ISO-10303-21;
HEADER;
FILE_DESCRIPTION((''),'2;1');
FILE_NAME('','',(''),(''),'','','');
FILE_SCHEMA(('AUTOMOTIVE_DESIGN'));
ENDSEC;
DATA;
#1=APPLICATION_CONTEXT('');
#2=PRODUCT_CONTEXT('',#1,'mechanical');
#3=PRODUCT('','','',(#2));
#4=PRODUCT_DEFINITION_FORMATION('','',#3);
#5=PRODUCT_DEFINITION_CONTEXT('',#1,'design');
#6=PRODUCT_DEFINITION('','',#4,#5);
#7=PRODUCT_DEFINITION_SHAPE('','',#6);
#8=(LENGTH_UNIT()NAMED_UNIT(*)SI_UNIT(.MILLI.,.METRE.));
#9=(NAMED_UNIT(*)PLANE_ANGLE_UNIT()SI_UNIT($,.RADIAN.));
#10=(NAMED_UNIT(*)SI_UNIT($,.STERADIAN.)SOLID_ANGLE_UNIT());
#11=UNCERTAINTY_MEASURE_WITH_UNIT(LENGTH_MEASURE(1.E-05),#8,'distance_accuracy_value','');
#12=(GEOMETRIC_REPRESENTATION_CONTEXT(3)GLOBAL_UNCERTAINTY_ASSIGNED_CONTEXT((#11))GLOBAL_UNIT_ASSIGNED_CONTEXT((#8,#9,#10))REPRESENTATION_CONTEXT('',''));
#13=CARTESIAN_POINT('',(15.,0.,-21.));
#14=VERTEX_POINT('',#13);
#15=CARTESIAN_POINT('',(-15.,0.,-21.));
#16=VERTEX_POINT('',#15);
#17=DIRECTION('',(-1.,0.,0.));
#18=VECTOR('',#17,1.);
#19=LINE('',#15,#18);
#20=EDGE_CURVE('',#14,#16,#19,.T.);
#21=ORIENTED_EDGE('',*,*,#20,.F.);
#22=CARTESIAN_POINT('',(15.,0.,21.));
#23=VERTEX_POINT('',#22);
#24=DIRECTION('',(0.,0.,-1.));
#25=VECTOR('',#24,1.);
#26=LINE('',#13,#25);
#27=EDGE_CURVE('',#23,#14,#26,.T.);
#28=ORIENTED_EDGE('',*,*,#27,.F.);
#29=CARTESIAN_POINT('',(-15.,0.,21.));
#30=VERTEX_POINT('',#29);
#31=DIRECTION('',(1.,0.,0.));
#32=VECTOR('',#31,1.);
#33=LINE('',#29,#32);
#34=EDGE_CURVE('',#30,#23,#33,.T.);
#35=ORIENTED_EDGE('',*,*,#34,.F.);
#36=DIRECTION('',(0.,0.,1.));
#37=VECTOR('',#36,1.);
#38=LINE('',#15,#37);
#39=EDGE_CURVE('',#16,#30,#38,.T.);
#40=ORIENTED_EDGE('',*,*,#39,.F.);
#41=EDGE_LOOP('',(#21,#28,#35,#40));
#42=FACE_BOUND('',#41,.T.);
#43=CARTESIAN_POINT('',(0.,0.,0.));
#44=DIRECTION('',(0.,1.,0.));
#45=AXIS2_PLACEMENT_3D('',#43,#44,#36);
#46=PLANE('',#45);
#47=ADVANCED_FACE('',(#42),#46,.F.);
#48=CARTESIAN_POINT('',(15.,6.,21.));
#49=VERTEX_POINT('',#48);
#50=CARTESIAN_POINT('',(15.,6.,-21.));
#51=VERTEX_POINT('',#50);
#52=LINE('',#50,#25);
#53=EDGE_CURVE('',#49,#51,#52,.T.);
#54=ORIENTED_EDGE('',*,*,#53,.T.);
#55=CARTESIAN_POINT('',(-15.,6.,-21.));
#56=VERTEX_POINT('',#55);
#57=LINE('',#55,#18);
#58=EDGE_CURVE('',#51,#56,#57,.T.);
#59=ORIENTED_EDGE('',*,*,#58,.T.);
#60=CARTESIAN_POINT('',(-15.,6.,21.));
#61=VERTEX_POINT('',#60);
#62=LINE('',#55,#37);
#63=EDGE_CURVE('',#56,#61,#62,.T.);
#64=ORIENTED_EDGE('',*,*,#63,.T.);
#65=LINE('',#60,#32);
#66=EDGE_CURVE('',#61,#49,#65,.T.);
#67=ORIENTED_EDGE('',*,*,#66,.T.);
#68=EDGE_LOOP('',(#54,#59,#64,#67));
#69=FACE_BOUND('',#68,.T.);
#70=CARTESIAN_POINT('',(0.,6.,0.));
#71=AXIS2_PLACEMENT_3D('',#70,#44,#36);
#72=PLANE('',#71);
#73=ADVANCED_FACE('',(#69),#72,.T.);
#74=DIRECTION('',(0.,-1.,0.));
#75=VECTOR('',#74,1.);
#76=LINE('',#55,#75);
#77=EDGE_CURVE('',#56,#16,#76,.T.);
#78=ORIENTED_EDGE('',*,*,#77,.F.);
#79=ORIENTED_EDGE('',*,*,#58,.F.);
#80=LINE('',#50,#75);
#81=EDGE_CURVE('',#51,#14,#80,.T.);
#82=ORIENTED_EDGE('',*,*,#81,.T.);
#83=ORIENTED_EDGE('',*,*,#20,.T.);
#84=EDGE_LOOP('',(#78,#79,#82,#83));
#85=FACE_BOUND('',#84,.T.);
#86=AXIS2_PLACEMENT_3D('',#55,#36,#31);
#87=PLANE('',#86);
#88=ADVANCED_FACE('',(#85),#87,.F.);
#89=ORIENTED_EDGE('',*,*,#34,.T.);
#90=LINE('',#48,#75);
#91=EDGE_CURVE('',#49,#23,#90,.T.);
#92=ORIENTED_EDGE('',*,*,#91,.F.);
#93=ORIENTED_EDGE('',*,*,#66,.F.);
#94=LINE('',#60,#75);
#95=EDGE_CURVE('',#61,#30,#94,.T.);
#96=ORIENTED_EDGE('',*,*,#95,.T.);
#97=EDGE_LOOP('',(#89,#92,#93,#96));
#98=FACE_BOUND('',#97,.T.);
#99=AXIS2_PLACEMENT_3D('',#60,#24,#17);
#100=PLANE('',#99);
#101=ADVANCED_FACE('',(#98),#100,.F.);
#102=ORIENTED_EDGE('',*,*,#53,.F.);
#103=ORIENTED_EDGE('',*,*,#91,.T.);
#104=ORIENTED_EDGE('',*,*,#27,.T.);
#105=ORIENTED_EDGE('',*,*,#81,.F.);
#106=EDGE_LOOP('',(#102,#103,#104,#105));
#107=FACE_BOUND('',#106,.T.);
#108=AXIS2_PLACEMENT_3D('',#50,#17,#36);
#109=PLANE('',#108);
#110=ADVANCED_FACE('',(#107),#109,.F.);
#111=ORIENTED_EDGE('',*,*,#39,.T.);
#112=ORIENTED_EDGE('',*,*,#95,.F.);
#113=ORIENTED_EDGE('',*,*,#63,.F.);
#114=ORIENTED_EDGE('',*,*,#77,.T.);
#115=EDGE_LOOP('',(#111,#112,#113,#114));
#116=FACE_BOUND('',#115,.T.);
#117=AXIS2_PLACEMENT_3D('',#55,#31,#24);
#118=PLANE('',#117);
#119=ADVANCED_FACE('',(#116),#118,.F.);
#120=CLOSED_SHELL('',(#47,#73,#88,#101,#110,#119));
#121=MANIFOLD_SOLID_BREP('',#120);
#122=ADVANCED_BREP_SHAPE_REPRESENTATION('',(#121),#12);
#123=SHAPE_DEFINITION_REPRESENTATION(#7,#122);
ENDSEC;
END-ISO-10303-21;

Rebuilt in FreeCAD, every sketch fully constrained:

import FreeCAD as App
import Part
import Sketcher

V = App.Vector

doc = App.newDocument("Part")
body = doc.addObject("PartDesign::Body", "Body")

# Sketch on XZ plane
sketch1 = body.newObject("Sketcher::SketchObject", "Sketch")
sketch1.AttachmentSupport = (doc.getObject("XZ_Plane"), [""])
sketch1.MapMode = "FlatFace"
sketch1.addGeometry(Part.LineSegment(V(-15, -21, 0), V(-15, 21, 0)), False)
sketch1.addGeometry(Part.LineSegment(V(-15, 21, 0), V(15, 21, 0)), False)
sketch1.addGeometry(Part.LineSegment(V(15, 21, 0), V(15, -21, 0)), False)
sketch1.addGeometry(Part.LineSegment(V(15, -21, 0), V(-15, -21, 0)), False)
sketch1.addConstraint(Sketcher.Constraint("Coincident", 0, 2, 1, 1))
sketch1.addConstraint(Sketcher.Constraint("Coincident", 1, 2, 2, 1))
sketch1.addConstraint(Sketcher.Constraint("Coincident", 2, 2, 3, 1))
sketch1.addConstraint(Sketcher.Constraint("Coincident", 3, 2, 0, 1))
sketch1.addConstraint(Sketcher.Constraint("Vertical", 0))
sketch1.addConstraint(Sketcher.Constraint("Horizontal", 1))
sketch1.addConstraint(Sketcher.Constraint("Vertical", 2))
sketch1.addConstraint(Sketcher.Constraint("Horizontal", 3))
sketch1.addConstraint(Sketcher.Constraint("Symmetric", 0, 2, 2, 2, -1, 1))
sketch1.addConstraint(Sketcher.Constraint("DistanceX", 1, 1, 1, 2, 30.0))
sketch1.addConstraint(Sketcher.Constraint("DistanceY", 0, 1, 0, 2, 42.0))
pad1 = body.newObject("PartDesign::Pad", "Pad")
pad1.Profile = sketch1
pad1.Length = 6
pad1.Reversed = True

doc.recompute()
